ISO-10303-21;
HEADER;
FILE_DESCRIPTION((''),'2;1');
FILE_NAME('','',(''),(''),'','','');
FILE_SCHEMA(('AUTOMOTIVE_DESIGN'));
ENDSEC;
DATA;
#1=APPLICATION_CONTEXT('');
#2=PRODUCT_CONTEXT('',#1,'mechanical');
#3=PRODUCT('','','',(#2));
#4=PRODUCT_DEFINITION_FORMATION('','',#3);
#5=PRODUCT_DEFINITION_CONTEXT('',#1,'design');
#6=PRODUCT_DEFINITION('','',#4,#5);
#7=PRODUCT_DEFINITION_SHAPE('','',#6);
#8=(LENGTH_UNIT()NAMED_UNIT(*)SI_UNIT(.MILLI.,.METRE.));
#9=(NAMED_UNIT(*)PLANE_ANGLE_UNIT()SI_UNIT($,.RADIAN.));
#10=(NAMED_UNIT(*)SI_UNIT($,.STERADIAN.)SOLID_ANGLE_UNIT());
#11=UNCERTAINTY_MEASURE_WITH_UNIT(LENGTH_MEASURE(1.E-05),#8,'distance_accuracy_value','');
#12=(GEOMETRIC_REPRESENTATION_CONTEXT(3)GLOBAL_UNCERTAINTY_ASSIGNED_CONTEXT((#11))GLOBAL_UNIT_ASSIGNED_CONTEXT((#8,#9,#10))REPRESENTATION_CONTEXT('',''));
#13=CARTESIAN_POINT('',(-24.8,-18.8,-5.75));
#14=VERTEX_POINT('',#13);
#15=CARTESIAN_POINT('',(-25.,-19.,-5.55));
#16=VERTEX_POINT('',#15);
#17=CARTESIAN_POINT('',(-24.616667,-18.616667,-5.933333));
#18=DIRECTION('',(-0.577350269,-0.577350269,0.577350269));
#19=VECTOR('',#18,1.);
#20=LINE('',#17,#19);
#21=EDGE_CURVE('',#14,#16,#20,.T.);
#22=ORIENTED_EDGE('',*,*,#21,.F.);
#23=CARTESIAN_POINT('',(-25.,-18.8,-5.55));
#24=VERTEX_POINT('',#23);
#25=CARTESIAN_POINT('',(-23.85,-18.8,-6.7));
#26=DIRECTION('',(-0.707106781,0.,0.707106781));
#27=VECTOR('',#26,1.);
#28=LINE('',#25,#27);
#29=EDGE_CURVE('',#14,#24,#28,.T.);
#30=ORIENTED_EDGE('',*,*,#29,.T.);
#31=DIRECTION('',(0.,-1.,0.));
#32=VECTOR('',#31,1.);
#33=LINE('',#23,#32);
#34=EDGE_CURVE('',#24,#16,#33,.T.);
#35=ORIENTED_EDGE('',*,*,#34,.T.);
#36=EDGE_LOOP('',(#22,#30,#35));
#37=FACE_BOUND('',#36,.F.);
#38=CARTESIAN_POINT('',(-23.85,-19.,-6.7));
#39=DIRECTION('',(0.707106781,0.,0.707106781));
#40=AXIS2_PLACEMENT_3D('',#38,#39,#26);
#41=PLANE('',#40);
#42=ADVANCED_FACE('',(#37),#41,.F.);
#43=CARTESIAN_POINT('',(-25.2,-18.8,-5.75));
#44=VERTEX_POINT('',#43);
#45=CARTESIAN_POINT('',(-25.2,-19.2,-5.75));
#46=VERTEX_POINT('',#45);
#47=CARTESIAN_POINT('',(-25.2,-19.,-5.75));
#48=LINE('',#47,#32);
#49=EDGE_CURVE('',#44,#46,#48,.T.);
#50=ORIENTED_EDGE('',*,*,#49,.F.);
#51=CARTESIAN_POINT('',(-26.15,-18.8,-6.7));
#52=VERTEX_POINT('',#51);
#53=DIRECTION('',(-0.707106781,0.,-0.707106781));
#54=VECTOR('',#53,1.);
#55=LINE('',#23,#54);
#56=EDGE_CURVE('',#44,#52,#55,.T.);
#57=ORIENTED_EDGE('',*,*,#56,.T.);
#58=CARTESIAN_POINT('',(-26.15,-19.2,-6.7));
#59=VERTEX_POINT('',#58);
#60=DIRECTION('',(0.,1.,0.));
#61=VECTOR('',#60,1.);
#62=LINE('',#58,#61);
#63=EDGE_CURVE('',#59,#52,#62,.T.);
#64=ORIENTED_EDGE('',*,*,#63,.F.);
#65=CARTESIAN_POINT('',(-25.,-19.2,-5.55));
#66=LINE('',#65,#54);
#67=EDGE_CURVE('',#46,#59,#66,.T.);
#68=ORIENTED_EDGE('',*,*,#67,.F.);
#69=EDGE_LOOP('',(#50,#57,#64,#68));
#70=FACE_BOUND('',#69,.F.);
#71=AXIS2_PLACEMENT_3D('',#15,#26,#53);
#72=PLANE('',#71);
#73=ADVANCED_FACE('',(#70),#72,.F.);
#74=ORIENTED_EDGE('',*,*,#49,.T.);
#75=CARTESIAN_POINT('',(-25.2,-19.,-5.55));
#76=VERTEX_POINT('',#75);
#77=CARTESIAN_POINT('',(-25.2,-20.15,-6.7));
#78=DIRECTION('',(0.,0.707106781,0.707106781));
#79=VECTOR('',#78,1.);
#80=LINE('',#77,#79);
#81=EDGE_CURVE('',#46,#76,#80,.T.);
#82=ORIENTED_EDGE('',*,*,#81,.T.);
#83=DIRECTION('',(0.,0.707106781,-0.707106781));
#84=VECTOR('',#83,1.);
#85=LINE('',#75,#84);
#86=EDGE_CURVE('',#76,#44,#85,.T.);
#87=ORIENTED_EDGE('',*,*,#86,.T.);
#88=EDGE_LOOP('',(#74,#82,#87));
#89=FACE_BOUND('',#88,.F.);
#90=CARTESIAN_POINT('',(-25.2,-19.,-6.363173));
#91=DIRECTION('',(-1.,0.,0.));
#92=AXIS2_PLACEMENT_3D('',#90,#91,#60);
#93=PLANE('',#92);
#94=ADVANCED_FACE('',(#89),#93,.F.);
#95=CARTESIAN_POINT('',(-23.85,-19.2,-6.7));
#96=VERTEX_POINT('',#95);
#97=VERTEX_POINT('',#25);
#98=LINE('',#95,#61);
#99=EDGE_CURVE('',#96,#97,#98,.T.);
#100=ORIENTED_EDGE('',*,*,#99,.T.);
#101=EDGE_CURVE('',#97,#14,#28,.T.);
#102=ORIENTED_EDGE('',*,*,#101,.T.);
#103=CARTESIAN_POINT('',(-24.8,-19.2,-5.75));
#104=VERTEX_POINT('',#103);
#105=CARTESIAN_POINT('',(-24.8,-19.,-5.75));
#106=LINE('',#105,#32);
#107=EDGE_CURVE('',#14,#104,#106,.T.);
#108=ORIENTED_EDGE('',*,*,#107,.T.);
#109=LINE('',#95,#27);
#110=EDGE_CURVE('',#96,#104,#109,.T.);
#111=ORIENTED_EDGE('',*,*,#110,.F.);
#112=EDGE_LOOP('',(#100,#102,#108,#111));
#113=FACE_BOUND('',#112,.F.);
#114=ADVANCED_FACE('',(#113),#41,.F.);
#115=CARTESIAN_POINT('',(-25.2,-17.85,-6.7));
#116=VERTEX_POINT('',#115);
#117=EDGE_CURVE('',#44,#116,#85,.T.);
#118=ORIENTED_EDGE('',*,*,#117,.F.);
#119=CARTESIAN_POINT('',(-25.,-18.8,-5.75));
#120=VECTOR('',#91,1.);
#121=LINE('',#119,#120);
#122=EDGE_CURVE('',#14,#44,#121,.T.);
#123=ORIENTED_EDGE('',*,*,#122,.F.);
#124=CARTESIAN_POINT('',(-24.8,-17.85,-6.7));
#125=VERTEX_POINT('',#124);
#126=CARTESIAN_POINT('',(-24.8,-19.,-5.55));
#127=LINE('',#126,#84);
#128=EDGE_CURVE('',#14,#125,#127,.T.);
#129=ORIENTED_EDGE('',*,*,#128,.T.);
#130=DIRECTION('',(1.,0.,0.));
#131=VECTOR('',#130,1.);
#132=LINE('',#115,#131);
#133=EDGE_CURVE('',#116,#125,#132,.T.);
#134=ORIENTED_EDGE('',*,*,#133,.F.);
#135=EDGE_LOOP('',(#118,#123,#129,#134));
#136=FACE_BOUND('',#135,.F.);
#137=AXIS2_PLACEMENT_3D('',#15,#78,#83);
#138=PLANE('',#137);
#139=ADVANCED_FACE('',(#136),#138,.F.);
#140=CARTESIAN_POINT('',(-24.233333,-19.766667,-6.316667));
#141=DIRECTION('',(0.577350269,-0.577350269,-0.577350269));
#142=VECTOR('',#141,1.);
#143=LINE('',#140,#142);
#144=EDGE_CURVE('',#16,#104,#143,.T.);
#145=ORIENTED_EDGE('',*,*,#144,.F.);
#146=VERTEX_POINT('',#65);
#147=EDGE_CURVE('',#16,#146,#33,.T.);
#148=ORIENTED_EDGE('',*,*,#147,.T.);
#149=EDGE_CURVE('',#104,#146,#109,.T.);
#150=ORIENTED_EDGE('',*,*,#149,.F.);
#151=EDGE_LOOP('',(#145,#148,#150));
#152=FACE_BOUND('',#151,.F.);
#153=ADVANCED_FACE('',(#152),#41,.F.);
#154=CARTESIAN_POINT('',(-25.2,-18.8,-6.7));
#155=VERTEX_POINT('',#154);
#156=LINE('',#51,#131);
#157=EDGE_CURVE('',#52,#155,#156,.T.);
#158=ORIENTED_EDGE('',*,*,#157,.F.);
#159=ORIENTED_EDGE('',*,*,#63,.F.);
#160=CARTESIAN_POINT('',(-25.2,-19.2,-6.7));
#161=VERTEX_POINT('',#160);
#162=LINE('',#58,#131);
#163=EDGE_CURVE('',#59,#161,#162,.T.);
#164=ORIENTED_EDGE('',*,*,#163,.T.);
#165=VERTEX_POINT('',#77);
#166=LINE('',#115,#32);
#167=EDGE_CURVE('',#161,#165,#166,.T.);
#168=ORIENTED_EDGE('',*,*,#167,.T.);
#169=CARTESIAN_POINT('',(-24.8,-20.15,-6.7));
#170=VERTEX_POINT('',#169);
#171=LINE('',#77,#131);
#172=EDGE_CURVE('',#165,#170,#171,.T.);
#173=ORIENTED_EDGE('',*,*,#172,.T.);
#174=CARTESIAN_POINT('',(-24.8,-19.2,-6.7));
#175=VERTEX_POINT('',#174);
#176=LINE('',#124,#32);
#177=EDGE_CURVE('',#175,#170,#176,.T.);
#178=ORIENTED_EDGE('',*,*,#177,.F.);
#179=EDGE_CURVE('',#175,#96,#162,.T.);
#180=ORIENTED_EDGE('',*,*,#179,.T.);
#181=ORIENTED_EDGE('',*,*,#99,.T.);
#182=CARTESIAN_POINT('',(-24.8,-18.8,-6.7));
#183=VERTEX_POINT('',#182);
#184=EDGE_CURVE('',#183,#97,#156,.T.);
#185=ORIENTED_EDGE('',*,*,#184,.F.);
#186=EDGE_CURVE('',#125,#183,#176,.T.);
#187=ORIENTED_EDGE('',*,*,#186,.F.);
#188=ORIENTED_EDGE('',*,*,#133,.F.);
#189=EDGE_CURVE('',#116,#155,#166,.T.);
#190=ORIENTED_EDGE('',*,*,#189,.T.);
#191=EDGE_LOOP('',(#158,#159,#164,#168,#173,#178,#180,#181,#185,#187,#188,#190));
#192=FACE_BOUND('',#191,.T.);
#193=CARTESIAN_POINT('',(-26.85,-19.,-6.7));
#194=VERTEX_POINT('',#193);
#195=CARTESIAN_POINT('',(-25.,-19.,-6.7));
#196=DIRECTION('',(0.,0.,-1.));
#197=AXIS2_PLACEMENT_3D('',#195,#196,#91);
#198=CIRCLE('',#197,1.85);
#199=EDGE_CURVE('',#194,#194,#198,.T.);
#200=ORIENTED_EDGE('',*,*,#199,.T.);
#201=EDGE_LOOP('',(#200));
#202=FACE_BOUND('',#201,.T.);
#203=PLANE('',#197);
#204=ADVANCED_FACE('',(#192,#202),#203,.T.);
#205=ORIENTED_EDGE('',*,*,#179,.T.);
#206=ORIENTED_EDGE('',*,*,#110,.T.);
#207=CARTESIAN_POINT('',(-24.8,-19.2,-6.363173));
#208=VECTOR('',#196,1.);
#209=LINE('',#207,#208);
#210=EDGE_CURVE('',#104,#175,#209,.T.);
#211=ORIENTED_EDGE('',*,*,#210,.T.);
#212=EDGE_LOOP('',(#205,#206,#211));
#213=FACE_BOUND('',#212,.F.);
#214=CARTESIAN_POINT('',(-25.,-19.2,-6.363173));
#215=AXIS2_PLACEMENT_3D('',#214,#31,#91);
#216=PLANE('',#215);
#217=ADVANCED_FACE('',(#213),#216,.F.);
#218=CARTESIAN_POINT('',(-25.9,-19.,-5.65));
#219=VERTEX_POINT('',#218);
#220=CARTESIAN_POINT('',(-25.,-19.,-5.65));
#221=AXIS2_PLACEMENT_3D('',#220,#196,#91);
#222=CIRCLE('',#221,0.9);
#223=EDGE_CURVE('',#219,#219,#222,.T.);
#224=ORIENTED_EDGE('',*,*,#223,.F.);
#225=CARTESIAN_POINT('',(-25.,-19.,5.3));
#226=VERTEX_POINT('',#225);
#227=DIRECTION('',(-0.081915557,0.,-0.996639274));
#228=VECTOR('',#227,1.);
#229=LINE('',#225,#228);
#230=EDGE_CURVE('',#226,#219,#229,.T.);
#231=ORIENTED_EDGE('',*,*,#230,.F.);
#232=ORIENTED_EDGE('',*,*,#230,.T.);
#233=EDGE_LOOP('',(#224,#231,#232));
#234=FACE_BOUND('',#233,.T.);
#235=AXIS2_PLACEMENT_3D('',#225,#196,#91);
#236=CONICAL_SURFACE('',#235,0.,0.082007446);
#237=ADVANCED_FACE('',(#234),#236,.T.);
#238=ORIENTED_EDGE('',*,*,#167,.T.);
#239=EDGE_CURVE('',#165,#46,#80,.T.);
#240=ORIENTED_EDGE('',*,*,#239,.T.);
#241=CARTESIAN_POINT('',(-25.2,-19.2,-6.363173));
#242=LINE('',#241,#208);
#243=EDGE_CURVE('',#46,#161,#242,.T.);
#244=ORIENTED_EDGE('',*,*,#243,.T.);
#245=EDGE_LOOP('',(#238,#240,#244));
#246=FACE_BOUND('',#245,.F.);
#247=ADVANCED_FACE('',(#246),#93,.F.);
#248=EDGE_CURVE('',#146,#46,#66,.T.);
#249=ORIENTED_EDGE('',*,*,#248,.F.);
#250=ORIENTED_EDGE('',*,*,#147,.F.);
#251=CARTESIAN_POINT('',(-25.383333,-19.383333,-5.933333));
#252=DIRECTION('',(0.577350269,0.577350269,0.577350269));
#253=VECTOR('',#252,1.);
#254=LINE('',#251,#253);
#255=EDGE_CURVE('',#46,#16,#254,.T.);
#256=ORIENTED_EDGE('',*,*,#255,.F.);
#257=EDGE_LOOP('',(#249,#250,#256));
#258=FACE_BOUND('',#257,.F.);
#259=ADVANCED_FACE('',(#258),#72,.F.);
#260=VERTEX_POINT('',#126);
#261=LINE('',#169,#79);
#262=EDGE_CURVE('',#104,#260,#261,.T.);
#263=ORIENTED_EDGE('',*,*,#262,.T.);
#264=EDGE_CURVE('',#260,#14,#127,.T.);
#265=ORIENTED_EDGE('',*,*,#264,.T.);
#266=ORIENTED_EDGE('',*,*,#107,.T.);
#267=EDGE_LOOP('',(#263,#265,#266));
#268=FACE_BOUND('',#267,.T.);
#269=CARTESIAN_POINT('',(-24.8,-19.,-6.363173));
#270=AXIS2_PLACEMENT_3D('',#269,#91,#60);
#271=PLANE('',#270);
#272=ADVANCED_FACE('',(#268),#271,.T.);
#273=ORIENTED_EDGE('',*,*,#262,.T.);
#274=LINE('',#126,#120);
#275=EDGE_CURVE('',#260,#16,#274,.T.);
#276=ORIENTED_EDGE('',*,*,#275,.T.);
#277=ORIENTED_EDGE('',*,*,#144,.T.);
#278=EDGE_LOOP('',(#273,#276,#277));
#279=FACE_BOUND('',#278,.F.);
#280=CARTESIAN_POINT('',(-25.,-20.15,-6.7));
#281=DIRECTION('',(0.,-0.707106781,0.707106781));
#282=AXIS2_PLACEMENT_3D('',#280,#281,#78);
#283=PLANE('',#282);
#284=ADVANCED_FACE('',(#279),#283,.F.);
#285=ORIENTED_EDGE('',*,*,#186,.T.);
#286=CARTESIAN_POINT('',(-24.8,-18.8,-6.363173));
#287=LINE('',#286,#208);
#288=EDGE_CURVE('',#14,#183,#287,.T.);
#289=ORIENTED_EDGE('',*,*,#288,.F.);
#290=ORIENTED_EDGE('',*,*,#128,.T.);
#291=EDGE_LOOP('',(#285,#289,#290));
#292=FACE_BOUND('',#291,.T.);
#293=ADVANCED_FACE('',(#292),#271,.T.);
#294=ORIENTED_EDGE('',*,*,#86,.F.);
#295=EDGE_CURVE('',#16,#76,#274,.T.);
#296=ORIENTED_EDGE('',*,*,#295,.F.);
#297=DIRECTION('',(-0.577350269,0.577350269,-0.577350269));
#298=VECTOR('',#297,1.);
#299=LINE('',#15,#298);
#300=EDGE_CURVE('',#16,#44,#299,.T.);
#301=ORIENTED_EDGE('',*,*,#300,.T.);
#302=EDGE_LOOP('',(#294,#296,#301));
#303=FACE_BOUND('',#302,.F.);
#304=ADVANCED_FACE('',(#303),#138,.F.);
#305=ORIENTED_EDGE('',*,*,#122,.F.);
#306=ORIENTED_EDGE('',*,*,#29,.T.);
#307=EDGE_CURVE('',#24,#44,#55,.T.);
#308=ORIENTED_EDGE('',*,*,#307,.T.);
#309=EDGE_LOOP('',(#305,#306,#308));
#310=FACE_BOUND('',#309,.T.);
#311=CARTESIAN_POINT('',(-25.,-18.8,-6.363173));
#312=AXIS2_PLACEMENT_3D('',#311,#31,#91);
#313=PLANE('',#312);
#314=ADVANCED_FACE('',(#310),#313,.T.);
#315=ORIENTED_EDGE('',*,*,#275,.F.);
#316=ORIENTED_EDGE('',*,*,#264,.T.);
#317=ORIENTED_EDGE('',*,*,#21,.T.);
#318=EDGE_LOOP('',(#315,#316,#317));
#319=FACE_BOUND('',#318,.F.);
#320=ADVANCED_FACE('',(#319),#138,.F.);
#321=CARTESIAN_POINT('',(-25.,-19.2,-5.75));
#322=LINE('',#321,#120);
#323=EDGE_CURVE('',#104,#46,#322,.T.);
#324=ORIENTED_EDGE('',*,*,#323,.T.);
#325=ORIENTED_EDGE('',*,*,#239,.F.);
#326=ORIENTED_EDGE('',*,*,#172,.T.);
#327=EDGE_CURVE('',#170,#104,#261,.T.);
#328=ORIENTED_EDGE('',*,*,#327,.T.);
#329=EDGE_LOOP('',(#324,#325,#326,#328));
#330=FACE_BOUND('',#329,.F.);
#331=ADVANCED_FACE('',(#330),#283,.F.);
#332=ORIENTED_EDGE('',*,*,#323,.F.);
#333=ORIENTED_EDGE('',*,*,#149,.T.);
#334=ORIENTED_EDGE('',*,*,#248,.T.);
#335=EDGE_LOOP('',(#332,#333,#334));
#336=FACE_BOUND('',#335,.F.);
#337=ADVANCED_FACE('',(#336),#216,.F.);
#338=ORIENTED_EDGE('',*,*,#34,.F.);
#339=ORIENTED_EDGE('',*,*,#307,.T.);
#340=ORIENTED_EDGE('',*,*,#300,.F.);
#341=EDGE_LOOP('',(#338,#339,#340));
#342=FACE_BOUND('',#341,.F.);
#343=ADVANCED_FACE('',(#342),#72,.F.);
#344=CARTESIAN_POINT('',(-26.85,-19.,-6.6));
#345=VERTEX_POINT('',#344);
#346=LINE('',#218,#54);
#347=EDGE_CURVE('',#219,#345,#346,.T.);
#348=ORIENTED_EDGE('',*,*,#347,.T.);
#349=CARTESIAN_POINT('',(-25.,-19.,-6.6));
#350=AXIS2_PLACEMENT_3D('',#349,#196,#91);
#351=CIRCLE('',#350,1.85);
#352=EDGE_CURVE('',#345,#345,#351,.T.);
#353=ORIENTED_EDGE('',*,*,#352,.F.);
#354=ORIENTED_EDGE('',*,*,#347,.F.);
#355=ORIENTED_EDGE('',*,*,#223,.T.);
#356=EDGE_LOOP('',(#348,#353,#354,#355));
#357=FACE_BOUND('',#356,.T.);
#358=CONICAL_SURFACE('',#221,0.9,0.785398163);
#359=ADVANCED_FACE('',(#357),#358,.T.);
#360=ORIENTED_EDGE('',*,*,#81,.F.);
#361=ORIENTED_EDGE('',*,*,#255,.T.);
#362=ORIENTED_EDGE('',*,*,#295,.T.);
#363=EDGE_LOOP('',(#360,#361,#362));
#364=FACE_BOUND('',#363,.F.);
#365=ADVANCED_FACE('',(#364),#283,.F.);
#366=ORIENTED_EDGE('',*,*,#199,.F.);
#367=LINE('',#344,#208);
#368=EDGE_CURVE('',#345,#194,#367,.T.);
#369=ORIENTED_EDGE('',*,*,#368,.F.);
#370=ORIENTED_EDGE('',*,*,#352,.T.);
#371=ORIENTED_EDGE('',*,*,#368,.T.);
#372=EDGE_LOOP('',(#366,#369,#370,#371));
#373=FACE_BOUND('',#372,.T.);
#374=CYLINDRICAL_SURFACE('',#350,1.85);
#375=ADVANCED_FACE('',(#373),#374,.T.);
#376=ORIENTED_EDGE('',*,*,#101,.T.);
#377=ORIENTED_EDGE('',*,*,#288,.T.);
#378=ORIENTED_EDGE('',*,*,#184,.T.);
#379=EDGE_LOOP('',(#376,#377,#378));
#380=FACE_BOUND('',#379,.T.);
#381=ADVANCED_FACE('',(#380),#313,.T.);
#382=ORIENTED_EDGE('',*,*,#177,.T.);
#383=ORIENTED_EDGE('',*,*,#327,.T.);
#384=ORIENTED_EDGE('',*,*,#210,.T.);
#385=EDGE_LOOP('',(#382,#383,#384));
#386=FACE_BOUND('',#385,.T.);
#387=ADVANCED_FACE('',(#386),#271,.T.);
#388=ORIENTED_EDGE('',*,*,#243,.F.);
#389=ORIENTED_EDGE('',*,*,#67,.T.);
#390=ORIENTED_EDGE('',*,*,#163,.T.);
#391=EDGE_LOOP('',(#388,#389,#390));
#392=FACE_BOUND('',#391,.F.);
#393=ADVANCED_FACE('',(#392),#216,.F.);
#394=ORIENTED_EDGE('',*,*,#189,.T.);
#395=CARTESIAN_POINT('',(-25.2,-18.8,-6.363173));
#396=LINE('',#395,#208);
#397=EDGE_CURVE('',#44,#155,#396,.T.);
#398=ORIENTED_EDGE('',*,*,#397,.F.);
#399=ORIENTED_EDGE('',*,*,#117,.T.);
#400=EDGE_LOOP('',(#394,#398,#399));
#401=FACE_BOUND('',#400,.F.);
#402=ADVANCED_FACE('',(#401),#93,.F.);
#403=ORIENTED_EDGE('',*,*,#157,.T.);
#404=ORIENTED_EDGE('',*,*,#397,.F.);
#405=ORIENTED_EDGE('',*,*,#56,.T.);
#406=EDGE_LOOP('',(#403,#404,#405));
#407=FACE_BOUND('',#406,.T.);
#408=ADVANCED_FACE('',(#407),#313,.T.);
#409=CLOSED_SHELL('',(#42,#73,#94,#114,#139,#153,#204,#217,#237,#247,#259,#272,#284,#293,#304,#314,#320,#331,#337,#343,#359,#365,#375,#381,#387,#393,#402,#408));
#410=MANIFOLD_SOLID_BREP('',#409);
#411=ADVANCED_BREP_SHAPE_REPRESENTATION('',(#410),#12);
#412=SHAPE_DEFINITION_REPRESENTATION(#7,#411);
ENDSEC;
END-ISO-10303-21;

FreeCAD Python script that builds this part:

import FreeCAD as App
import Part
import Sketcher
Q = App.Units.Quantity

doc = App.newDocument("Part")
body = doc.addObject("PartDesign::Body", "Body")

sketch1 = doc.addObject("Sketcher::SketchObject", "Sketch")
body.addObject(sketch1)
sketch1.AttachmentSupport = (doc.XZ_Plane, [""])
sketch1.MapMode = "FlatFace"
sketch1.addGeometry([
    Part.LineSegment(App.Vector(0, 0, 0), App.Vector(0, -12, 0)),
    Part.LineSegment(App.Vector(0, -12, 0), App.Vector(0.9, -1.05, 0)),
    Part.LineSegment(App.Vector(0.9, -1.05, 0), App.Vector(1.85, -0.1, 0)),
    Part.LineSegment(App.Vector(1.85, -0.1, 0), App.Vector(1.85, 0, 0)),
    Part.LineSegment(App.Vector(1.85, 0, 0), App.Vector(0, 0, 0)),
], False)
sketch1.addConstraint([
    Sketcher.Constraint("Coincident", 0, 2, 1, 1),
    Sketcher.Constraint("Coincident", 1, 2, 2, 1),
    Sketcher.Constraint("Coincident", 2, 2, 3, 1),
    Sketcher.Constraint("Coincident", 3, 2, 4, 1),
    Sketcher.Constraint("Coincident", 4, 2, 0, 1),
    Sketcher.Constraint("Vertical", 0),
    Sketcher.Constraint("Vertical", 3),
    Sketcher.Constraint("Horizontal", 4),
    Sketcher.Constraint("Coincident", 4, 2, -1, 1),
    Sketcher.Constraint("DistanceY", 0, 2, 0, 1, Q("12 mm")),
    Sketcher.Constraint("Angle", 2, Q("45 deg")),
    Sketcher.Constraint("DistanceY", 3, 1, 3, 2, Q("0.1 mm")),
    Sketcher.Constraint("DistanceX", 4, 2, 4, 1, Q("1.85 mm")),
    Sketcher.Constraint("DistanceX", -1, 1, 1, 2, Q("0.9 mm")),
])
revolution = doc.addObject("PartDesign::Revolution", "Revolution")
body.addObject(revolution)
revolution.Profile = sketch1
revolution.ReferenceAxis = (sketch1, ["V_Axis"])
revolution.Angle = 360

sketch2 = doc.addObject("Sketcher::SketchObject", "Sketch001")
body.addObject(sketch2)
sketch2.AttachmentSupport = (doc.XZ_Plane, [""])
sketch2.MapMode = "FlatFace"
sketch2.addGeometry([
    Part.LineSegment(App.Vector(-1.15, 0, 0), App.Vector(0, -1.15, 0)),
    Part.LineSegment(App.Vector(0, -1.15, 0), App.Vector(1.15, 0, 0)),
    Part.LineSegment(App.Vector(1.15, 0, 0), App.Vector(-1.15, 0, 0)),
], False)
sketch2.addConstraint([
    Sketcher.Constraint("Coincident", 0, 2, 1, 1),
    Sketcher.Constraint("Coincident", 1, 2, 2, 1),
    Sketcher.Constraint("Coincident", 2, 2, 0, 1),
    Sketcher.Constraint("Horizontal", 2),
    Sketcher.Constraint("Symmetric", 1, 2, 2, 2, -1, 1),
    Sketcher.Constraint("PointOnObject", 0, 2, -2),
    Sketcher.Constraint("Perpendicular", 0, 1),
    Sketcher.Constraint("DistanceX", 2, 2, 2, 1, Q("2.3 mm")),
])
pocket1 = doc.addObject("PartDesign::Pocket", "Pocket")
body.addObject(pocket1)
pocket1.Profile = sketch2
pocket1.Length = 0.4
pocket1.Midplane = True
doc.recompute()

polarpattern = doc.addObject("PartDesign::PolarPattern", "PolarPattern")
body.addObject(polarpattern)
polarpattern.Originals = [pocket1]
polarpattern.Axis = (doc.Z_Axis, [""])
polarpattern.Angle = 90
polarpattern.Occurrences = 2
body.Tip = polarpattern
body2 = doc.addObject("PartDesign::Body", "Body001")
doc.recompute()

body.Placement = App.Placement(App.Vector(-25, -19, -6.7), App.Rotation(App.Vector(0, 1, 0), 180))
boolean = doc.addObject("PartDesign::Boolean", "Boolean")
body2.addObject(boolean)
boolean.Type = "Fuse"
boolean.addObjects([body])

doc.recompute()
